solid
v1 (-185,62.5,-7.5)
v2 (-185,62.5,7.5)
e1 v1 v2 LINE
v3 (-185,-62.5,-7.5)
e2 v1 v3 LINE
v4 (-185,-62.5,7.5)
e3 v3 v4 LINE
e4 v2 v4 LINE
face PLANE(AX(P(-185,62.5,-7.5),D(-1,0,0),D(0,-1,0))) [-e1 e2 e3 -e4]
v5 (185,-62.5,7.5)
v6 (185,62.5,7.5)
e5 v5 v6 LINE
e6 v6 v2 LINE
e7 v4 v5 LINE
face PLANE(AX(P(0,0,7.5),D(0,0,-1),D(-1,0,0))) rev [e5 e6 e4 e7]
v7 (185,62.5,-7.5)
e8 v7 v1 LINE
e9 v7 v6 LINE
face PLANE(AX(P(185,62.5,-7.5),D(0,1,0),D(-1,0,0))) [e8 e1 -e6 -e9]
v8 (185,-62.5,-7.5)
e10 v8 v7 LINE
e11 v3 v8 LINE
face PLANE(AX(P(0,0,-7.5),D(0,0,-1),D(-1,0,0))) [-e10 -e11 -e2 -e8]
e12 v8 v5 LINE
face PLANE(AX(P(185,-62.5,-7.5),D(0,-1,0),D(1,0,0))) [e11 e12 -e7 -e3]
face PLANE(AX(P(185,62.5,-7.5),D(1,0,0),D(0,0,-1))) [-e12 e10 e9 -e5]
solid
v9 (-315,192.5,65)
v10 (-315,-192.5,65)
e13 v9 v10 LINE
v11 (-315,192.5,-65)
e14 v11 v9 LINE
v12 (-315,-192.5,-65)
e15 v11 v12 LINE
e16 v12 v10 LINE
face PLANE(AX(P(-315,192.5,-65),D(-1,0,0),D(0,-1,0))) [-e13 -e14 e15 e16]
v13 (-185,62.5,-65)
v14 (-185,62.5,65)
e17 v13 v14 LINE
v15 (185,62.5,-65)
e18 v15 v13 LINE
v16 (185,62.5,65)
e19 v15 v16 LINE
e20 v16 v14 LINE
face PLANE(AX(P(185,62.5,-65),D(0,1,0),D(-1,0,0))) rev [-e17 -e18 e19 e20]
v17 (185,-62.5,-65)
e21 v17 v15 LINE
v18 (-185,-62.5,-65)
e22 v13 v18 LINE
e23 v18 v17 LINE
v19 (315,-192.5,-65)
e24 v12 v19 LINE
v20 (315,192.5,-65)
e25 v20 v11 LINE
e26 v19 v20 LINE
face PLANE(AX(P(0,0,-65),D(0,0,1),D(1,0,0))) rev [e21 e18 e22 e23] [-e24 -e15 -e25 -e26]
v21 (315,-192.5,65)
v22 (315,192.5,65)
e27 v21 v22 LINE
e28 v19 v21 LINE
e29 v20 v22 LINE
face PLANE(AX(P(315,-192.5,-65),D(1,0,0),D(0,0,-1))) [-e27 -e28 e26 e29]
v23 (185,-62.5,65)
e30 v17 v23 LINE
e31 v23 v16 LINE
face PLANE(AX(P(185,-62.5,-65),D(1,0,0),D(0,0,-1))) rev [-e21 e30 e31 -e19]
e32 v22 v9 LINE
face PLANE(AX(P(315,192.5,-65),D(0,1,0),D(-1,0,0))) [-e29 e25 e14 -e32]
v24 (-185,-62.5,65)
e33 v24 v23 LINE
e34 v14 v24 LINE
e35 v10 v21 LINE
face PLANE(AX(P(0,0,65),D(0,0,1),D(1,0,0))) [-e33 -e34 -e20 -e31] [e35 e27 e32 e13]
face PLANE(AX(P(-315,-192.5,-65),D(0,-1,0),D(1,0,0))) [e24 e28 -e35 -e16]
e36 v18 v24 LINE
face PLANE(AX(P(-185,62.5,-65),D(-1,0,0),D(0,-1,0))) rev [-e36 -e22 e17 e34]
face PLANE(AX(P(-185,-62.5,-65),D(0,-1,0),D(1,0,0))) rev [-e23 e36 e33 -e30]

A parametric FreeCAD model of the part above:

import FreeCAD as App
import Part
import Sketcher

V = App.Vector


def add_polygon(sketch, points):
    """Adds a closed chain of lines whose ends are joined by coincident constraints."""
    first, n = sketch.GeometryCount, len(points)
    for a, b in zip(points, points[1:] + points[:1]):
        sketch.addGeometry(Part.LineSegment(App.Vector(*a, 0), App.Vector(*b, 0)), False)
    for i in range(n):
        sketch.addConstraint(Sketcher.Constraint("Coincident", first + i, 2, first + (i + 1) % n, 1))

doc = App.newDocument("Part")
body = doc.addObject("PartDesign::Body", "Body")

# Sketch on XY plane
sketch1 = body.newObject("Sketcher::SketchObject", "Sketch")
sketch1.AttachmentSupport = (doc.getObject("XY_Plane"), [""])
sketch1.MapMode = "FlatFace"
add_polygon(sketch1, [(-185, 62.5), (-185, -62.5), (185, -62.5), (185, 62.5)])  # lines 0-3
sketch1.addConstraint([
    Sketcher.Constraint("Vertical", 0),
    Sketcher.Constraint("Horizontal", 1),
    Sketcher.Constraint("Vertical", 2),
    Sketcher.Constraint("Horizontal", 3),
    Sketcher.Constraint("Symmetric", 0, 2, 2, 2, -1, 1),
    Sketcher.Constraint("DistanceX", 1, 1, 1, 2, 370.0),
    Sketcher.Constraint("DistanceY", 0, 2, 0, 1, 125.0),
])
pad1 = body.newObject("PartDesign::Pad", "Pad")
pad1.Profile = sketch1
pad1.Type = "TwoLengths"
pad1.Length = 7.5
pad1.Length2 = 7.5
body2 = doc.addObject("PartDesign::Body", "Body001")

# Sketch on XY plane
sketch2 = body2.newObject("Sketcher::SketchObject", "Sketch001")
sketch2.AttachmentSupport = (doc.getObject("XY_Plane001"), [""])
sketch2.MapMode = "FlatFace"
add_polygon(sketch2, [(-315, 192.5), (-315, -192.5), (315, -192.5), (315, 192.5)])  # lines 0-3
add_polygon(sketch2, [(185, -62.5), (-185, -62.5), (-185, 62.5), (185, 62.5)])  # lines 4-7
sketch2.addConstraint([
    Sketcher.Constraint("Vertical", 0),
    Sketcher.Constraint("Horizontal", 1),
    Sketcher.Constraint("Vertical", 2),
    Sketcher.Constraint("Horizontal", 3),
    Sketcher.Constraint("Horizontal", 4),
    Sketcher.Constraint("Vertical", 5),
    Sketcher.Constraint("Horizontal", 6),
    Sketcher.Constraint("Vertical", 7),
    Sketcher.Constraint("Symmetric", 0, 2, 2, 2, -1, 1),
    Sketcher.Constraint("Symmetric", 4, 2, 6, 2, -1, 1),
    Sketcher.Constraint("DistanceX", 1, 1, 1, 2, 630.0),
    Sketcher.Constraint("DistanceX", 4, 2, 4, 1, 370.0),
    Sketcher.Constraint("DistanceY", 0, 2, 0, 1, 385.0),
    Sketcher.Constraint("DistanceY", 5, 1, 5, 2, 125.0),
])
pad2 = body2.newObject("PartDesign::Pad", "Pad001")
pad2.Profile = sketch2
pad2.Type = "TwoLengths"
pad2.Length = 65
pad2.Length2 = 65

doc.recompute()
